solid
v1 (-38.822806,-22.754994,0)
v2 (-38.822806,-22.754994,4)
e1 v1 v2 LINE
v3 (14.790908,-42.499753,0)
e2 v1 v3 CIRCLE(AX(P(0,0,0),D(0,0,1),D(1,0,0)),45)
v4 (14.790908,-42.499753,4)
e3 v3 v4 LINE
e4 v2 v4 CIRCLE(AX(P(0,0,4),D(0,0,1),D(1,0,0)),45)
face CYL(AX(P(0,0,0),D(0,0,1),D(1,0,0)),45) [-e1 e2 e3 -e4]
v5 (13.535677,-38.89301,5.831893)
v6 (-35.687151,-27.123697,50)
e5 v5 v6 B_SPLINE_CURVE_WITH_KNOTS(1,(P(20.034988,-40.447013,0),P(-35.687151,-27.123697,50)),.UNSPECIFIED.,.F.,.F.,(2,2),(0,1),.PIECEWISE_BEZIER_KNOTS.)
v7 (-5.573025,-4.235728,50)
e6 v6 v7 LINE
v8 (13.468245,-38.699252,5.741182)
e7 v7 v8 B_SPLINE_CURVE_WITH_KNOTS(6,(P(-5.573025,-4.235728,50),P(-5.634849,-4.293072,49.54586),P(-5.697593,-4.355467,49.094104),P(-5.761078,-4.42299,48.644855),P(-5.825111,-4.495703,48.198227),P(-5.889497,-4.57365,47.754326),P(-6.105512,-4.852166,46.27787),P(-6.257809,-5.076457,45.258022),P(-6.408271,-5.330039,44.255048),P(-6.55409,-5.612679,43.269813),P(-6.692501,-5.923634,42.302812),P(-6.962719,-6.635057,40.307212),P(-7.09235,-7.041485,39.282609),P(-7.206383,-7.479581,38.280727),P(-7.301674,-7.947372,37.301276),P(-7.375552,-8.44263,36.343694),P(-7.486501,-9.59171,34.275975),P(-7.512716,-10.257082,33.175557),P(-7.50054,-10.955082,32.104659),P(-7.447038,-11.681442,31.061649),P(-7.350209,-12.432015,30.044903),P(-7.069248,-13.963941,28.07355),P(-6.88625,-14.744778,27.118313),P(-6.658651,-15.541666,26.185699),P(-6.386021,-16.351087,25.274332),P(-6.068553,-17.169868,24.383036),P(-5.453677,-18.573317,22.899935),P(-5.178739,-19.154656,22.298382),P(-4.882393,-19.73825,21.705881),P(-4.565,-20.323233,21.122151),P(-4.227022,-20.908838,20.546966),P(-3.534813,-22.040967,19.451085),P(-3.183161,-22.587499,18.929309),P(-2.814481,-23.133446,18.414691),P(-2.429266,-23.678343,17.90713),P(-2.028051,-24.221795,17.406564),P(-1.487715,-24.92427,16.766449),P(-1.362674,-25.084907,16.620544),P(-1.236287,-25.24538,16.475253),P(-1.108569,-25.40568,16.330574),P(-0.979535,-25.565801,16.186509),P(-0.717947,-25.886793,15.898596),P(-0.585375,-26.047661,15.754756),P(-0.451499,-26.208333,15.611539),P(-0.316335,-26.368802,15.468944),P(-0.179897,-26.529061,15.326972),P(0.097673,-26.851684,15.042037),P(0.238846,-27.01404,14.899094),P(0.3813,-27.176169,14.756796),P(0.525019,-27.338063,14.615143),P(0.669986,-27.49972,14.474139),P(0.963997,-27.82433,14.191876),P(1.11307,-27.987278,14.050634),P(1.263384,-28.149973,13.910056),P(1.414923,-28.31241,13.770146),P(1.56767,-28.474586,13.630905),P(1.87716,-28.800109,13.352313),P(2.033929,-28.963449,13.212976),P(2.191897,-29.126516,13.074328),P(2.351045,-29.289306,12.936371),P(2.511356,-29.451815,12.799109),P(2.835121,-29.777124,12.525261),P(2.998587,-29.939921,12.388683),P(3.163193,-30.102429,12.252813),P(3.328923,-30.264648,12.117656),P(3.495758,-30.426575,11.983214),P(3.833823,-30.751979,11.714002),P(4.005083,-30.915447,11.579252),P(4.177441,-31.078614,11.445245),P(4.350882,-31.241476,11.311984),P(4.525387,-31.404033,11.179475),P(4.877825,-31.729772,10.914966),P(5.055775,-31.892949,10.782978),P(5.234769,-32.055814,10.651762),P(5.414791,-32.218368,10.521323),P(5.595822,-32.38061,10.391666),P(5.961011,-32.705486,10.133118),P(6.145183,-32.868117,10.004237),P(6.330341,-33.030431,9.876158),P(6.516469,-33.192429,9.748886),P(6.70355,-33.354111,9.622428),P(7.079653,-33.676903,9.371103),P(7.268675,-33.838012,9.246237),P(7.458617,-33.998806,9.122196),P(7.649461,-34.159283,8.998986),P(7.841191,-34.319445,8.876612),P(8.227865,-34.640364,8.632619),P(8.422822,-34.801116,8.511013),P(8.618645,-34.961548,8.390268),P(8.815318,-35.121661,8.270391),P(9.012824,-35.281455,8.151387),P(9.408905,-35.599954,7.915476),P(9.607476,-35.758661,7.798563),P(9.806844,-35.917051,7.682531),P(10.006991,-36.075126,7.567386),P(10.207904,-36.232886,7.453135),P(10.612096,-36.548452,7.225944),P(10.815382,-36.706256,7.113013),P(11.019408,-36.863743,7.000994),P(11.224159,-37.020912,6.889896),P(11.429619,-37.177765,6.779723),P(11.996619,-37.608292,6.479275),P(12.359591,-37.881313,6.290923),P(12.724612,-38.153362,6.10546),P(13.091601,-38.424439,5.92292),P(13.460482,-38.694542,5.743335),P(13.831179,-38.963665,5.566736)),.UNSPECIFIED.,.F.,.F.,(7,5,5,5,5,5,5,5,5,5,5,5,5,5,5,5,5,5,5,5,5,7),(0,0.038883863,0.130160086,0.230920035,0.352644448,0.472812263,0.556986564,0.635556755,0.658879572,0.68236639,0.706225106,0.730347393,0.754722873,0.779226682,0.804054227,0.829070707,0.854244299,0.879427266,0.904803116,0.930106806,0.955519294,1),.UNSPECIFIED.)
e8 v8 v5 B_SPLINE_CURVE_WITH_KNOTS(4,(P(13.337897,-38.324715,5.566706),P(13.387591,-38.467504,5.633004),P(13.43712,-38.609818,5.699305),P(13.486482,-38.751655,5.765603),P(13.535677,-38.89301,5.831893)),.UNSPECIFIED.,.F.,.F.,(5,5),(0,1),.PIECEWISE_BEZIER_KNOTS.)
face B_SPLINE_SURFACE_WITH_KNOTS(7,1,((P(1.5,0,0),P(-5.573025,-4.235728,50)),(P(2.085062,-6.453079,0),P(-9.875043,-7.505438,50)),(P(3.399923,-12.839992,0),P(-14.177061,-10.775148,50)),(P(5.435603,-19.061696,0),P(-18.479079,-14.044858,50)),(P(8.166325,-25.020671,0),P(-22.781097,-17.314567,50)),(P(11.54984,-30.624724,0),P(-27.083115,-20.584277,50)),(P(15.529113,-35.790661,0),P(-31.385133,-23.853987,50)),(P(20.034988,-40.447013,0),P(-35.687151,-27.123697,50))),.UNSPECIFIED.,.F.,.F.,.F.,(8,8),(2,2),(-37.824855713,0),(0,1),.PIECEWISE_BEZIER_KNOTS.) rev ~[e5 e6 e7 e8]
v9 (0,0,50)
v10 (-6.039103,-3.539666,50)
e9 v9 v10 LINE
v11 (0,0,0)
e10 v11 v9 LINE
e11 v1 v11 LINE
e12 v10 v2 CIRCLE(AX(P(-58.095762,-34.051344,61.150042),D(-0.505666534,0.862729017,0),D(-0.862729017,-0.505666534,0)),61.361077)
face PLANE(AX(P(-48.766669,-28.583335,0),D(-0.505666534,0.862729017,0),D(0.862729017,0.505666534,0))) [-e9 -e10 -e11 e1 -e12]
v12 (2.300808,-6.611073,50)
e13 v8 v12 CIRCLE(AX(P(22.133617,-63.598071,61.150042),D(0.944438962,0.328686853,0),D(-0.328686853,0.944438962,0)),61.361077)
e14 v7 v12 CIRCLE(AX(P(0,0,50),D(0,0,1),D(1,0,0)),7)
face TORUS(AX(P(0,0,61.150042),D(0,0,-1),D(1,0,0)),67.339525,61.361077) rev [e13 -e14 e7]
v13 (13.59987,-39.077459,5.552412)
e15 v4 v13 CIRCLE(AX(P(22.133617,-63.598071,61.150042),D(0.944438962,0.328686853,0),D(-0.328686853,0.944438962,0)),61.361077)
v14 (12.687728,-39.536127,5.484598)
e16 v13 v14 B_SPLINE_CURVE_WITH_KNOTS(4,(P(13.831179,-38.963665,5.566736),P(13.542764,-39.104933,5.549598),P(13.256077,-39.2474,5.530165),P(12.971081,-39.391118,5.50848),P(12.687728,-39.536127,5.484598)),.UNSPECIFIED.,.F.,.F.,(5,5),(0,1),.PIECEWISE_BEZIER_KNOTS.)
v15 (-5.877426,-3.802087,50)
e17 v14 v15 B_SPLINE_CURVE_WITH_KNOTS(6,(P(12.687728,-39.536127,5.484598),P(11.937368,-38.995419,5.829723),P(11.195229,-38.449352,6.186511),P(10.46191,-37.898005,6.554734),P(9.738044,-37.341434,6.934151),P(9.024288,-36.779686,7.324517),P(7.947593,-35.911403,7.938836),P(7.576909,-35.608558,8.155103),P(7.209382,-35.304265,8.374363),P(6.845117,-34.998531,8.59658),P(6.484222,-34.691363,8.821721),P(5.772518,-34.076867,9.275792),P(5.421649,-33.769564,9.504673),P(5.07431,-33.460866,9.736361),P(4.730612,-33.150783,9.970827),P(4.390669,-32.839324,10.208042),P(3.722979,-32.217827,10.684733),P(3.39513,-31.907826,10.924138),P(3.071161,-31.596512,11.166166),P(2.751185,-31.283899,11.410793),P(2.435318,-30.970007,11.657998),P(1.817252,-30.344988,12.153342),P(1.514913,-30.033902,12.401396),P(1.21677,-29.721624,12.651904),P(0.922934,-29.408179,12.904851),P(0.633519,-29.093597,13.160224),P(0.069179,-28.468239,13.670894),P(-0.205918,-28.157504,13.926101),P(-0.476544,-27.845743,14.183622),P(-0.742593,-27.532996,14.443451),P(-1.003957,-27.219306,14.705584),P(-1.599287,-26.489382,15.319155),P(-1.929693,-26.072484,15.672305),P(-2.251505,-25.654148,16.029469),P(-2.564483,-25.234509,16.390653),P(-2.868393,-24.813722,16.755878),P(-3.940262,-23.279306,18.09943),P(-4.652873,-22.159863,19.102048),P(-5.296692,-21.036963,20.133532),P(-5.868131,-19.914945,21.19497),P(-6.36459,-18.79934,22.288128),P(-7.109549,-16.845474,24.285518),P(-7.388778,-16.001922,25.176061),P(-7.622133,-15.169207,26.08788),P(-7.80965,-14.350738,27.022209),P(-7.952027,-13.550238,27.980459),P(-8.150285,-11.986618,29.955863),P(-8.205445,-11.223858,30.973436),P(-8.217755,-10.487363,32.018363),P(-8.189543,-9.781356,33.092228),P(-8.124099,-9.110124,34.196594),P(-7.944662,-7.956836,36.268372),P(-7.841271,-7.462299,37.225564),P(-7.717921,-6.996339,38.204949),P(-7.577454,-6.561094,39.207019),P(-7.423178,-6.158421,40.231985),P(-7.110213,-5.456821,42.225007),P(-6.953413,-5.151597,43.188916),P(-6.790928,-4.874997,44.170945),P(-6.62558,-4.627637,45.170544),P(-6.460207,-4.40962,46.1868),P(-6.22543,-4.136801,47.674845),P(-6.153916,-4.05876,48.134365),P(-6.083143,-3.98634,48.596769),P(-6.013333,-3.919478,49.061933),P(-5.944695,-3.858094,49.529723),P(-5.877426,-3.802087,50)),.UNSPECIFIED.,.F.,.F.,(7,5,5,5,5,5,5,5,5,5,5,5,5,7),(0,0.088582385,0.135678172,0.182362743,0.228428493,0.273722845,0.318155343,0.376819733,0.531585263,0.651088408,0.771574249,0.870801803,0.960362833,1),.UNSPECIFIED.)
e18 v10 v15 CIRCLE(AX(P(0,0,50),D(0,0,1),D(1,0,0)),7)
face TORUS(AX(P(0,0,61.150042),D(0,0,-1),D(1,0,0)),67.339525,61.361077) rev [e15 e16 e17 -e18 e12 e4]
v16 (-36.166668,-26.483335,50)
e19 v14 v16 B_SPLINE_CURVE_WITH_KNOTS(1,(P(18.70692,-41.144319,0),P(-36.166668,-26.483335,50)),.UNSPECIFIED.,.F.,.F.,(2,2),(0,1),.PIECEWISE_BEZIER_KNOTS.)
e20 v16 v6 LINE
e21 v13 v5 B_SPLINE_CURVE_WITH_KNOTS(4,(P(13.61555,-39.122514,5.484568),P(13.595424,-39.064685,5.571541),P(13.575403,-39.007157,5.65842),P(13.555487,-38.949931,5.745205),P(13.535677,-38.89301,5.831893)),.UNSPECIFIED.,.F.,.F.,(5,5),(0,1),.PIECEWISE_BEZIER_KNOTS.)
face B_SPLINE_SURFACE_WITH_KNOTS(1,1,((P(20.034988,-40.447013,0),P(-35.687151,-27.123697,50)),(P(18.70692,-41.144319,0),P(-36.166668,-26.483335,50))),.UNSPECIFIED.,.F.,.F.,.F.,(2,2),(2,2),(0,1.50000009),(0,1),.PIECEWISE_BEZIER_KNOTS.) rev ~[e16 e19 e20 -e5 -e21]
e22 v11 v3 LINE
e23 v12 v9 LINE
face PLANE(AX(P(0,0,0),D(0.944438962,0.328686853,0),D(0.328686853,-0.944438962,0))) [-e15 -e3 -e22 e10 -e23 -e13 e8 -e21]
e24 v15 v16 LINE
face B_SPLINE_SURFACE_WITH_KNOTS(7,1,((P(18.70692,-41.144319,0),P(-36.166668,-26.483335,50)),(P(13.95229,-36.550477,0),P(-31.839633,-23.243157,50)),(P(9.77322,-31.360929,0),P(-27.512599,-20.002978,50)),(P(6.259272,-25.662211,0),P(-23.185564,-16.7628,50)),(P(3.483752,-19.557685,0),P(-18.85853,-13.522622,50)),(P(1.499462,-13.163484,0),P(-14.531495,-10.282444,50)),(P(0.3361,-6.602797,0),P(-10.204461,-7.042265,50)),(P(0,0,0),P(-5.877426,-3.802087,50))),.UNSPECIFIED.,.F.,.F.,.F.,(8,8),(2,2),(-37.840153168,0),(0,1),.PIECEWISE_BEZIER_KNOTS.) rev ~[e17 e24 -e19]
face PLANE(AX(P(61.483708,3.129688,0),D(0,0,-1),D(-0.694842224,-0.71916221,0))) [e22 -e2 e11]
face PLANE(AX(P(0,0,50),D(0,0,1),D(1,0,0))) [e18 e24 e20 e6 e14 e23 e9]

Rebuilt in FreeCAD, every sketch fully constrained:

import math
import FreeCAD as App
import Part
import Sketcher
Q = App.Units.Quantity


def add_polygon(sketch, points):
    """Adds a closed chain of lines whose ends are joined by coincident constraints."""
    first, n = sketch.GeometryCount, len(points)
    for a, b in zip(points, points[1:] + points[:1]):
        sketch.addGeometry(Part.LineSegment(App.Vector(*a, 0), App.Vector(*b, 0)), False)
    for i in range(n):
        sketch.addConstraint(Sketcher.Constraint("Coincident", first + i, 2, first + (i + 1) % n, 1))

doc = App.newDocument("Part")
body = doc.addObject("PartDesign::Body", "Body")

sketch1 = doc.addObject("Sketcher::SketchObject", "Sketch")
body.addObject(sketch1)
sketch1.AttachmentSupport = (doc.XZ_Plane, [""])
sketch1.MapMode = "FlatFace"
sketch1.addGeometry(Part.LineSegment(App.Vector(0, 50, 0), App.Vector(0, 0, 0)), False)
sketch1.addGeometry(Part.LineSegment(App.Vector(0, 0, 0), App.Vector(45, 0, 0)), False)
sketch1.addGeometry(Part.LineSegment(App.Vector(45, 0, 0), App.Vector(45, 4, 0)), False)
sketch1.addGeometry(Part.ArcOfCircle(Part.Circle(App.Vector(67.339525, 61.150042, 0), App.Vector(0, 0, 1), 61.361077), math.radians(-169.530507), math.radians(-111.350157)), False)
sketch1.addGeometry(Part.LineSegment(App.Vector(7, 50, 0), App.Vector(0, 50, 0)), False)
sketch1.addConstraint(Sketcher.Constraint("Coincident", 0, 2, 1, 1))
sketch1.addConstraint(Sketcher.Constraint("Coincident", 1, 2, 2, 1))
sketch1.addConstraint(Sketcher.Constraint("Coincident", 2, 2, 3, 2))
sketch1.addConstraint(Sketcher.Constraint("Coincident", 3, 1, 4, 1))
sketch1.addConstraint(Sketcher.Constraint("Coincident", 4, 2, 0, 1))
sketch1.addConstraint(Sketcher.Constraint("Vertical", 0))
sketch1.addConstraint(Sketcher.Constraint("Horizontal", 1))
sketch1.addConstraint(Sketcher.Constraint("Vertical", 2))
sketch1.addConstraint(Sketcher.Constraint("Horizontal", 4))
sketch1.addConstraint(Sketcher.Constraint("Coincident", 0, 2, -1, 1))
sketch1.addConstraint(Sketcher.Constraint("DistanceX", 1, 1, 1, 2, Q("45 mm")))
sketch1.addConstraint(Sketcher.Constraint("DistanceX", 4, 2, 4, 1, Q("7 mm")))
sketch1.addConstraint(Sketcher.Constraint("DistanceY", 0, 2, 0, 1, Q("50 mm")))
sketch1.addConstraint(Sketcher.Constraint("DistanceY", 2, 1, 2, 2, Q("4 mm")))
sketch1.addConstraint(Sketcher.Constraint("Radius", 3, Q("61.361077 mm")))
revolution = doc.addObject("PartDesign::Revolution", "Revolution")
body.addObject(revolution)
revolution.Profile = sketch1
revolution.ReferenceAxis = (sketch1, ["V_Axis"])
revolution.Angle = 360

sketch2 = doc.addObject("Sketcher::SketchObject", "Sketch001")
body.addObject(sketch2)
sketch2.AttachmentSupport = (doc.XY_Plane, [""])
sketch2.MapMode = "FlatFace"
sketch2.addGeometry(Part.ArcOfCircle(Part.Circle(App.Vector(61.483708, 3.129688, 0), App.Vector(0, 0, 1), 61.563312), math.radians(-177.086004), math.radians(-134.014646)), False)
sketch2.addGeometry(Part.LineSegment(App.Vector(0, 0, 0), App.Vector(1.5, 0, 0)), False)
sketch2.addGeometry(Part.ArcOfCircle(Part.Circle(App.Vector(68.069806, 6.035482, 0), App.Vector(0, 0, 1), 66.842847), math.radians(-174.819501), math.radians(-135.940923)), False)
sketch2.addGeometry(Part.LineSegment(App.Vector(20.034988, -40.447013, 0), App.Vector(18.70692, -41.144319, 0)), False)
sketch2.addConstraint(Sketcher.Constraint("Coincident", 0, 1, 1, 1))
sketch2.addConstraint(Sketcher.Constraint("Coincident", 1, 2, 2, 1))
sketch2.addConstraint(Sketcher.Constraint("Coincident", 2, 2, 3, 1))
sketch2.addConstraint(Sketcher.Constraint("Coincident", 3, 2, 0, 2))
sketch2.addConstraint(Sketcher.Constraint("Horizontal", 1))
sketch2.addConstraint(Sketcher.Constraint("Coincident", 0, 1, -1, 1))
sketch2.addConstraint(Sketcher.Constraint("DistanceX", 1, 1, 1, 2, Q("1.5 mm")))
sketch2.addConstraint(Sketcher.Constraint("Distance", 3, Q("1.5 mm")))
sketch2.addConstraint(Sketcher.Constraint("Radius", 0, Q("61.563312 mm")))
sketch2.addConstraint(Sketcher.Constraint("Radius", 2, Q("66.842847 mm")))
sketch2.addConstraint(Sketcher.Constraint("DistanceY", 2, 2, 0, 3, Q("43.576701 mm")))
sketch2.addConstraint(Sketcher.Constraint("DistanceY", 3, 2, 2, 3, Q("47.179801 mm")))
sketch2.addConstraint(Sketcher.Constraint("DistanceX", -1, 1, 0, 3, Q("61.483708 mm")))

sketch3 = doc.addObject("Sketcher::SketchObject", "Sketch002")
body.addObject(sketch3)
sketch3.AttachmentSupport = (doc.XY_Plane, [""])
sketch3.MapMode = "FlatFace"
sketch3.AttachmentOffset = App.Placement(App.Vector(0, 0, 50), App.Rotation())
sketch3.addGeometry(Part.LineSegment(App.Vector(-35.687151, -27.123697, 0), App.Vector(-5.573025, -4.235728, 0)), False)
sketch3.addGeometry(Part.ArcOfCircle(Part.Circle(App.Vector(-0.000028, -0.000017, 0), App.Vector(0, 0, 1), 6.999968), math.radians(-147.101298), math.radians(-142.763644)), False)
sketch3.addGeometry(Part.LineSegment(App.Vector(-5.877426, -3.802087, 0), App.Vector(-36.166668, -26.483335, 0)), False)
sketch3.addGeometry(Part.LineSegment(App.Vector(-36.166668, -26.483335, 0), App.Vector(-35.687151, -27.123697, 0)), False)
sketch3.addConstraint(Sketcher.Constraint("Coincident", 0, 2, 1, 2))
sketch3.addConstraint(Sketcher.Constraint("Coincident", 1, 1, 2, 1))
sketch3.addConstraint(Sketcher.Constraint("Coincident", 2, 2, 3, 1))
sketch3.addConstraint(Sketcher.Constraint("Coincident", 3, 2, 0, 1))
sketch3.addConstraint(Sketcher.Constraint("Perpendicular", 2, 3))
sketch3.addConstraint(Sketcher.Constraint("Distance", 3, Q("0.8 mm")))
sketch3.addConstraint(Sketcher.Constraint("Radius", 1, Q("6.999968 mm")))
sketch3.addConstraint(Sketcher.Constraint("DistanceX", 1, 1, 0, 2, Q("0.304401 mm")))
sketch3.addConstraint(Sketcher.Constraint("DistanceX", 1, 1, 1, 3, Q("5.877398 mm")))
sketch3.addConstraint(Sketcher.Constraint("DistanceX", 3, 2, -1, 1, Q("35.687151 mm")))
sketch3.addConstraint(Sketcher.Constraint("DistanceY", 2, 2, 1, 1, Q("22.681248 mm")))
sketch3.addConstraint(Sketcher.Constraint("DistanceX", 2, 2, 1, 3, Q("36.16664 mm")))
sketch3.addConstraint(Sketcher.Constraint("DistanceY", 0, 2, -1, 1, Q("4.235728 mm")))

additiveloft = doc.addObject("PartDesign::AdditiveLoft", "AdditiveLoft")
body.addObject(additiveloft)
additiveloft.Profile = sketch2
additiveloft.Sections = [sketch3]

sketch4 = doc.addObject("Sketcher::SketchObject", "Sketch003")
body.addObject(sketch4)
sketch4.AttachmentSupport = (doc.XY_Plane, [""])
sketch4.MapMode = "FlatFace"
add_polygon(sketch4, [(-48.766669, -28.583335), (0, 0), (24.18991, -69.506563), (50.104998, -75.30845), (58.227632, 43.516669), (31.925756, 47.691509), (-48.766669, 43.516669)])
sketch4.addConstraint(Sketcher.Constraint("Vertical", 6))
sketch4.addConstraint(Sketcher.Constraint("Coincident", 0, 2, -1, 1))
sketch4.addConstraint(Sketcher.Constraint("Horizontal", 3, 2, 5, 2))
sketch4.addConstraint(Sketcher.Constraint("DistanceX", -1, 1, 2, 2, Q("50.104998 mm")))
sketch4.addConstraint(Sketcher.Constraint("DistanceX", 5, 2, 3, 2, Q("106.994301 mm")))
sketch4.addConstraint(Sketcher.Constraint("Distance", 1, Q("73.595612 mm")))
sketch4.addConstraint(Sketcher.Constraint("Distance", 3, Q("119.102418 mm")))
sketch4.addConstraint(Sketcher.Constraint("Distance", 5, Q("80.800351 mm")))
sketch4.addConstraint(Sketcher.Constraint("DistanceY", 6, 2, 6, 1, Q("72.100004 mm")))
sketch4.addConstraint(Sketcher.Constraint("DistanceX", -1, 1, 1, 2, Q("24.18991 mm")))
sketch4.addConstraint(Sketcher.Constraint("DistanceY", 2, 2, -1, 1, Q("75.30845 mm")))
sketch4.addConstraint(Sketcher.Constraint("DistanceY", -1, 1, 3, 2, Q("43.516669 mm")))
sketch4.addConstraint(Sketcher.Constraint("DistanceY", -1, 1, 4, 2, Q("47.691509 mm")))
pocket1 = doc.addObject("PartDesign::Pocket", "Pocket")
body.addObject(pocket1)
pocket1.Profile = sketch4
pocket1.Length = 66.294
pocket1.Reversed = True

doc.recompute()
